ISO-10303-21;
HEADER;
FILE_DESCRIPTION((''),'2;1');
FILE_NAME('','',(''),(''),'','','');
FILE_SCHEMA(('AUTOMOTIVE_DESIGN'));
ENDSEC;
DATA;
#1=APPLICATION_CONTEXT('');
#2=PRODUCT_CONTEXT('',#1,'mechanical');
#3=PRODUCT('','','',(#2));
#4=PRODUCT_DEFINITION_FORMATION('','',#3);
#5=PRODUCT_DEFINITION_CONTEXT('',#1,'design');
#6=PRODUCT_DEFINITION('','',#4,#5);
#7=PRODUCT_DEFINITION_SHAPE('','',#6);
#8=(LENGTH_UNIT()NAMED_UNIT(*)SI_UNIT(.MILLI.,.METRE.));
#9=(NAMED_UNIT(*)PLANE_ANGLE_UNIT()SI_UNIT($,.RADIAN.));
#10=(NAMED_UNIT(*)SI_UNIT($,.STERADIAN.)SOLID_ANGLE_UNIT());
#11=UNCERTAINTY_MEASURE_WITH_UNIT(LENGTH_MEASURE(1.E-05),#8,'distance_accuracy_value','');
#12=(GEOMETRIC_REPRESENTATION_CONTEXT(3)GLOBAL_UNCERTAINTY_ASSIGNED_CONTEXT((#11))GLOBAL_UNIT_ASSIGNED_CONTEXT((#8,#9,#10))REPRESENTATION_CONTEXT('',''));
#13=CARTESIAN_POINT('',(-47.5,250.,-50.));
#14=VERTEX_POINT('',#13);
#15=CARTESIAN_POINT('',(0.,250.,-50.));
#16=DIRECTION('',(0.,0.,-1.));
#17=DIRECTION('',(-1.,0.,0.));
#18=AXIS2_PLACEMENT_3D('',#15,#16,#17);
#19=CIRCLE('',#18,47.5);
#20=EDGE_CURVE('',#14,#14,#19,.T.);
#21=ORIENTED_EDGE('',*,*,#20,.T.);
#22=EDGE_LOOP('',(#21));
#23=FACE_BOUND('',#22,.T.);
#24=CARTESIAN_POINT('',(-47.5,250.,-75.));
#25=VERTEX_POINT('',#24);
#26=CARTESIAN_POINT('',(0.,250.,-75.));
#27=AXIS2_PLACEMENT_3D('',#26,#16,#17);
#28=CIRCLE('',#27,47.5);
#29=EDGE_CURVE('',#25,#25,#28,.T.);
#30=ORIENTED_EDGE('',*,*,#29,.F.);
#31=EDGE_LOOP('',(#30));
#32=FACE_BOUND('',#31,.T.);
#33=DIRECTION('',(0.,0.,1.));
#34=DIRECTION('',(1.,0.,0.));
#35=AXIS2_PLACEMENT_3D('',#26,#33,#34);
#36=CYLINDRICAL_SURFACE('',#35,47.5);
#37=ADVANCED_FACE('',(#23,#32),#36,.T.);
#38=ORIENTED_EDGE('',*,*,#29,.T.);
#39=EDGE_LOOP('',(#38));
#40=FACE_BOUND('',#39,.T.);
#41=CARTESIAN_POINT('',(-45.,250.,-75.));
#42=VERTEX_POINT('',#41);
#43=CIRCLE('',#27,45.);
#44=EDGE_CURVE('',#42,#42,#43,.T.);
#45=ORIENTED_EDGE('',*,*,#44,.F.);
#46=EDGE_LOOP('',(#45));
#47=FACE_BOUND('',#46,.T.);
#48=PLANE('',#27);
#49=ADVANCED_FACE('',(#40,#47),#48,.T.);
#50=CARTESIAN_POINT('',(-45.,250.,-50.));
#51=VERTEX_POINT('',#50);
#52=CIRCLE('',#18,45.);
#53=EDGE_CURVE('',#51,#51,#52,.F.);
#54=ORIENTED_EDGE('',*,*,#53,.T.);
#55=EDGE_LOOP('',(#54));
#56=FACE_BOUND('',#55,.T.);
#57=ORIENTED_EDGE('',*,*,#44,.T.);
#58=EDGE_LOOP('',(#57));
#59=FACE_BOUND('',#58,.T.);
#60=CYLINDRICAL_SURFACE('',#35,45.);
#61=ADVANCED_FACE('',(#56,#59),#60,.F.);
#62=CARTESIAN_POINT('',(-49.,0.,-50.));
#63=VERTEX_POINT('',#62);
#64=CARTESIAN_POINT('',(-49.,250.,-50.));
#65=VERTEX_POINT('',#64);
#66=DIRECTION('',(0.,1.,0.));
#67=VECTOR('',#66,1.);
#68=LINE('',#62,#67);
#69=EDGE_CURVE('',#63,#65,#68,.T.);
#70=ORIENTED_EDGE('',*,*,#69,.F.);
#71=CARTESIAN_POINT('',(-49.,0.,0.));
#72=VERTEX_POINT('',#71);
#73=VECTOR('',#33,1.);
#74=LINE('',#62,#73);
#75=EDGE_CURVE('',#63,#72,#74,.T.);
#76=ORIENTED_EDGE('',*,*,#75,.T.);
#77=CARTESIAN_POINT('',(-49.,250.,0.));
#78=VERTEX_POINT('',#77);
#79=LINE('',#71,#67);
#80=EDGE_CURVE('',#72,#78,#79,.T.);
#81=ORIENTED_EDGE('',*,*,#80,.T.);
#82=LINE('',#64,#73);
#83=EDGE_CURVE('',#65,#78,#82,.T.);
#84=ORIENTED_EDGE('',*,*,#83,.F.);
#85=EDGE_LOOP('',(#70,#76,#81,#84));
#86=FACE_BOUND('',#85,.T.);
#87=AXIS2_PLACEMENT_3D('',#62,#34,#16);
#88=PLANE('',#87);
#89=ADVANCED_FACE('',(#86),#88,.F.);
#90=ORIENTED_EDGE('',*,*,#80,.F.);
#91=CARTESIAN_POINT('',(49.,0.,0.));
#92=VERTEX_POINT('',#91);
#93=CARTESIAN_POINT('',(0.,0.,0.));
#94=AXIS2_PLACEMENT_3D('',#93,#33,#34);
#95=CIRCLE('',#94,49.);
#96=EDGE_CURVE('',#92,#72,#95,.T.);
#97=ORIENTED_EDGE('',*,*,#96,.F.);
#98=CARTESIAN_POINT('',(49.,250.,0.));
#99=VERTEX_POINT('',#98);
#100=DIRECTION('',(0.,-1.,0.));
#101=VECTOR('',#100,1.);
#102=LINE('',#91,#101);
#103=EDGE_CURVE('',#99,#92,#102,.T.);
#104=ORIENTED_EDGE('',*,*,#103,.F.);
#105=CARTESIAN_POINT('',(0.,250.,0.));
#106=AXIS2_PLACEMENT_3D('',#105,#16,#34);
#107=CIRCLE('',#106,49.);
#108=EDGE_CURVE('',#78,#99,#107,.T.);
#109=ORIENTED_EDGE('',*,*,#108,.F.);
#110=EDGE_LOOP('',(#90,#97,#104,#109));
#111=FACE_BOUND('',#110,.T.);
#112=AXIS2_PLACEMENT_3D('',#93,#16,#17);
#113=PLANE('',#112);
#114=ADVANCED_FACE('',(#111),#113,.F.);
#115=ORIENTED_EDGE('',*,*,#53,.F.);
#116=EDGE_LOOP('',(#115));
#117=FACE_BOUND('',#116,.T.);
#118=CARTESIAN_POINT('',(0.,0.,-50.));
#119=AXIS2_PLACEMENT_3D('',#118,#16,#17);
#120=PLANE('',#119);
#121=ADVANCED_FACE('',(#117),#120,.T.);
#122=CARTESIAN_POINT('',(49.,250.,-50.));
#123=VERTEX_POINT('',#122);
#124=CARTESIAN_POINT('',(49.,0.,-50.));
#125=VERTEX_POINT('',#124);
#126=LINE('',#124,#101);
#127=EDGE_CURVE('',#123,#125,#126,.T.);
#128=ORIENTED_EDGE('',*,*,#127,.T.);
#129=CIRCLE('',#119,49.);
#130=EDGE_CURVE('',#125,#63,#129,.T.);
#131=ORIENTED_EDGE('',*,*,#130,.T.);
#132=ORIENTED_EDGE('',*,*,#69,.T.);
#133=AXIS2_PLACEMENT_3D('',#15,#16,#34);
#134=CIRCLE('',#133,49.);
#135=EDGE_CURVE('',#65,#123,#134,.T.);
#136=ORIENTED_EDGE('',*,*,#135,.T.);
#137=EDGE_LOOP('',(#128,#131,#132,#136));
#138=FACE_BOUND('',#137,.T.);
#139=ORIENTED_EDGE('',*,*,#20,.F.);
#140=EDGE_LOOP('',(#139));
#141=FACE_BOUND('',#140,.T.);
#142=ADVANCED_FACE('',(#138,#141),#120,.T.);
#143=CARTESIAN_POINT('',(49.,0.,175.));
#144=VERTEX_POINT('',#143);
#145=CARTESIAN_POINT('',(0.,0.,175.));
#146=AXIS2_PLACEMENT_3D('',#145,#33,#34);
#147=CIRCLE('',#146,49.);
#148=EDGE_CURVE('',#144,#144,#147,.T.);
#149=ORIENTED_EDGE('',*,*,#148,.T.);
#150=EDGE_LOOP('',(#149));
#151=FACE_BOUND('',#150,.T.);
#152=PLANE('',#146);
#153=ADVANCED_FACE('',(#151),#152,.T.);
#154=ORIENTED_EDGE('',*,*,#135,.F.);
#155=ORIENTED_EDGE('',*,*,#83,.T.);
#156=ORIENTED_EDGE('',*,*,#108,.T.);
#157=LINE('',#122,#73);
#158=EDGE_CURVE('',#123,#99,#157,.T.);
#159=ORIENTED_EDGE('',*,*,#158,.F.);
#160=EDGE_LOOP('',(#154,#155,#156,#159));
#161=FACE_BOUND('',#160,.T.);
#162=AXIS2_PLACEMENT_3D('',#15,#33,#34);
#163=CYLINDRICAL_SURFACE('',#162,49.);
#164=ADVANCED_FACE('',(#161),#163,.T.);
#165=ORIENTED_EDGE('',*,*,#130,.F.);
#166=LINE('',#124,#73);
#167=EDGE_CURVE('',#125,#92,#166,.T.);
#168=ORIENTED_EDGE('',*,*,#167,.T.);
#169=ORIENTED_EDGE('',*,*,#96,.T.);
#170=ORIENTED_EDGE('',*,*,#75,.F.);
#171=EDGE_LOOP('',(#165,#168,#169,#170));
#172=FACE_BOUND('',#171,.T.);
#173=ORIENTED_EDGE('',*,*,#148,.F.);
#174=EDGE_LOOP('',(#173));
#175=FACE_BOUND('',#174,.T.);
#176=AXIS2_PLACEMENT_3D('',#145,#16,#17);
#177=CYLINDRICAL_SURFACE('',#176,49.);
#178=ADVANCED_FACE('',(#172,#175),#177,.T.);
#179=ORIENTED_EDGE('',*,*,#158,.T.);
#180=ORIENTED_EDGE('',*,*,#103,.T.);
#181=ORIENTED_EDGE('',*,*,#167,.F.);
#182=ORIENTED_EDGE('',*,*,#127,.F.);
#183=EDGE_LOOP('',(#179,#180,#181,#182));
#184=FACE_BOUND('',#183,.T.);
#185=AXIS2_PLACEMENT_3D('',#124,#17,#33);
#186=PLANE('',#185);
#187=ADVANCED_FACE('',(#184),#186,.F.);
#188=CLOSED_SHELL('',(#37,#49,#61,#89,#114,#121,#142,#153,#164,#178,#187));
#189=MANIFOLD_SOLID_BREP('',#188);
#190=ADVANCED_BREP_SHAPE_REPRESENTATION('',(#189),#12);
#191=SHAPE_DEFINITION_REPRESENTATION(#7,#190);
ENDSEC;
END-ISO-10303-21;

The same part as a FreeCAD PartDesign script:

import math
import FreeCAD as App
import Part
import Sketcher
Q = App.Units.Quantity

doc = App.newDocument("Part")
body = doc.addObject("PartDesign::Body", "Body")

# Sketch on XY plane
sketch1 = body.newObject("Sketcher::SketchObject", "Sketch")
sketch1.AttachmentSupport = (doc.getObject("XY_Plane"), [""])
sketch1.MapMode = "FlatFace"
sketch1.addGeometry(Part.Circle(App.Vector(0, 0, 0), App.Vector(0, 0, 1), 49), False)
sketch1.addConstraint(Sketcher.Constraint("Coincident", 0, 3, -1, 1))
sketch1.addConstraint(Sketcher.Constraint("Diameter", 0, Q("98 mm")))
pad1 = body.newObject("PartDesign::Pad", "Pad")
pad1.Profile = sketch1
pad1.Length = 175

# Sketch on XY plane
sketch2 = body.newObject("Sketcher::SketchObject", "Sketch001")
sketch2.AttachmentSupport = (doc.getObject("XY_Plane"), [""])
sketch2.MapMode = "FlatFace"
sketch2.AttachmentOffset = App.Placement(App.Vector(0, 0, -50), App.Rotation())
sketch2.addGeometry(Part.LineSegment(App.Vector(49, 250, 0), App.Vector(49, 0, 0)), False)
sketch2.addGeometry(Part.ArcOfCircle(Part.Circle(App.Vector(0, 0, 0), App.Vector(0, 0, 1), 49), math.radians(180), math.radians(360)), False)
sketch2.addGeometry(Part.LineSegment(App.Vector(-49, 0, 0), App.Vector(-49, 250, 0)), False)
sketch2.addGeometry(Part.ArcOfCircle(Part.Circle(App.Vector(0, 250, 0), App.Vector(0, 0, 1), 49), math.radians(0), math.radians(180)), False)
sketch2.addConstraint(Sketcher.Constraint("Tangent", 0, 2, 1, 2))
sketch2.addConstraint(Sketcher.Constraint("Tangent", 1, 1, 2, 1))
sketch2.addConstraint(Sketcher.Constraint("Tangent", 2, 2, 3, 2))
sketch2.addConstraint(Sketcher.Constraint("Tangent", 3, 1, 0, 1))
sketch2.addConstraint(Sketcher.Constraint("Vertical", 0))
sketch2.addConstraint(Sketcher.Constraint("Vertical", 2))
sketch2.addConstraint(Sketcher.Constraint("Coincident", 1, 3, -1, 1))
sketch2.addConstraint(Sketcher.Constraint("Radius", 1, Q("49 mm")))
sketch2.addConstraint(Sketcher.Constraint("DistanceY", 0, 2, 0, 1, Q("250 mm")))
pad2 = body.newObject("PartDesign::Pad", "Pad001")
pad2.Profile = sketch2
pad2.Length = 50

# Sketch on XY plane
sketch3 = body.newObject("Sketcher::SketchObject", "Sketch002")
sketch3.AttachmentSupport = (doc.getObject("XY_Plane"), [""])
sketch3.MapMode = "FlatFace"
sketch3.AttachmentOffset = App.Placement(App.Vector(0, 0, -50), App.Rotation())
sketch3.addGeometry(Part.Circle(App.Vector(0, 250, 0), App.Vector(0, 0, 1), 48), False)
sketch3.addGeometry(Part.Circle(App.Vector(0, 250, 0), App.Vector(0, 0, 1), 45), False)
sketch3.addConstraint(Sketcher.Constraint("Coincident", 1, 3, 0, 3))
sketch3.addConstraint(Sketcher.Constraint("PointOnObject", 0, 3, -2))
sketch3.addConstraint(Sketcher.Constraint("Diameter", 0, Q("95 mm")))
sketch3.addConstraint(Sketcher.Constraint("Diameter", 1, Q("90 mm")))
sketch3.addConstraint(Sketcher.Constraint("DistanceY", -1, 1, 0, 3, Q("250 mm")))
pad3 = body.newObject("PartDesign::Pad", "Pad002")
pad3.Profile = sketch3
pad3.Length = 25
pad3.Reversed = True

doc.recompute()
